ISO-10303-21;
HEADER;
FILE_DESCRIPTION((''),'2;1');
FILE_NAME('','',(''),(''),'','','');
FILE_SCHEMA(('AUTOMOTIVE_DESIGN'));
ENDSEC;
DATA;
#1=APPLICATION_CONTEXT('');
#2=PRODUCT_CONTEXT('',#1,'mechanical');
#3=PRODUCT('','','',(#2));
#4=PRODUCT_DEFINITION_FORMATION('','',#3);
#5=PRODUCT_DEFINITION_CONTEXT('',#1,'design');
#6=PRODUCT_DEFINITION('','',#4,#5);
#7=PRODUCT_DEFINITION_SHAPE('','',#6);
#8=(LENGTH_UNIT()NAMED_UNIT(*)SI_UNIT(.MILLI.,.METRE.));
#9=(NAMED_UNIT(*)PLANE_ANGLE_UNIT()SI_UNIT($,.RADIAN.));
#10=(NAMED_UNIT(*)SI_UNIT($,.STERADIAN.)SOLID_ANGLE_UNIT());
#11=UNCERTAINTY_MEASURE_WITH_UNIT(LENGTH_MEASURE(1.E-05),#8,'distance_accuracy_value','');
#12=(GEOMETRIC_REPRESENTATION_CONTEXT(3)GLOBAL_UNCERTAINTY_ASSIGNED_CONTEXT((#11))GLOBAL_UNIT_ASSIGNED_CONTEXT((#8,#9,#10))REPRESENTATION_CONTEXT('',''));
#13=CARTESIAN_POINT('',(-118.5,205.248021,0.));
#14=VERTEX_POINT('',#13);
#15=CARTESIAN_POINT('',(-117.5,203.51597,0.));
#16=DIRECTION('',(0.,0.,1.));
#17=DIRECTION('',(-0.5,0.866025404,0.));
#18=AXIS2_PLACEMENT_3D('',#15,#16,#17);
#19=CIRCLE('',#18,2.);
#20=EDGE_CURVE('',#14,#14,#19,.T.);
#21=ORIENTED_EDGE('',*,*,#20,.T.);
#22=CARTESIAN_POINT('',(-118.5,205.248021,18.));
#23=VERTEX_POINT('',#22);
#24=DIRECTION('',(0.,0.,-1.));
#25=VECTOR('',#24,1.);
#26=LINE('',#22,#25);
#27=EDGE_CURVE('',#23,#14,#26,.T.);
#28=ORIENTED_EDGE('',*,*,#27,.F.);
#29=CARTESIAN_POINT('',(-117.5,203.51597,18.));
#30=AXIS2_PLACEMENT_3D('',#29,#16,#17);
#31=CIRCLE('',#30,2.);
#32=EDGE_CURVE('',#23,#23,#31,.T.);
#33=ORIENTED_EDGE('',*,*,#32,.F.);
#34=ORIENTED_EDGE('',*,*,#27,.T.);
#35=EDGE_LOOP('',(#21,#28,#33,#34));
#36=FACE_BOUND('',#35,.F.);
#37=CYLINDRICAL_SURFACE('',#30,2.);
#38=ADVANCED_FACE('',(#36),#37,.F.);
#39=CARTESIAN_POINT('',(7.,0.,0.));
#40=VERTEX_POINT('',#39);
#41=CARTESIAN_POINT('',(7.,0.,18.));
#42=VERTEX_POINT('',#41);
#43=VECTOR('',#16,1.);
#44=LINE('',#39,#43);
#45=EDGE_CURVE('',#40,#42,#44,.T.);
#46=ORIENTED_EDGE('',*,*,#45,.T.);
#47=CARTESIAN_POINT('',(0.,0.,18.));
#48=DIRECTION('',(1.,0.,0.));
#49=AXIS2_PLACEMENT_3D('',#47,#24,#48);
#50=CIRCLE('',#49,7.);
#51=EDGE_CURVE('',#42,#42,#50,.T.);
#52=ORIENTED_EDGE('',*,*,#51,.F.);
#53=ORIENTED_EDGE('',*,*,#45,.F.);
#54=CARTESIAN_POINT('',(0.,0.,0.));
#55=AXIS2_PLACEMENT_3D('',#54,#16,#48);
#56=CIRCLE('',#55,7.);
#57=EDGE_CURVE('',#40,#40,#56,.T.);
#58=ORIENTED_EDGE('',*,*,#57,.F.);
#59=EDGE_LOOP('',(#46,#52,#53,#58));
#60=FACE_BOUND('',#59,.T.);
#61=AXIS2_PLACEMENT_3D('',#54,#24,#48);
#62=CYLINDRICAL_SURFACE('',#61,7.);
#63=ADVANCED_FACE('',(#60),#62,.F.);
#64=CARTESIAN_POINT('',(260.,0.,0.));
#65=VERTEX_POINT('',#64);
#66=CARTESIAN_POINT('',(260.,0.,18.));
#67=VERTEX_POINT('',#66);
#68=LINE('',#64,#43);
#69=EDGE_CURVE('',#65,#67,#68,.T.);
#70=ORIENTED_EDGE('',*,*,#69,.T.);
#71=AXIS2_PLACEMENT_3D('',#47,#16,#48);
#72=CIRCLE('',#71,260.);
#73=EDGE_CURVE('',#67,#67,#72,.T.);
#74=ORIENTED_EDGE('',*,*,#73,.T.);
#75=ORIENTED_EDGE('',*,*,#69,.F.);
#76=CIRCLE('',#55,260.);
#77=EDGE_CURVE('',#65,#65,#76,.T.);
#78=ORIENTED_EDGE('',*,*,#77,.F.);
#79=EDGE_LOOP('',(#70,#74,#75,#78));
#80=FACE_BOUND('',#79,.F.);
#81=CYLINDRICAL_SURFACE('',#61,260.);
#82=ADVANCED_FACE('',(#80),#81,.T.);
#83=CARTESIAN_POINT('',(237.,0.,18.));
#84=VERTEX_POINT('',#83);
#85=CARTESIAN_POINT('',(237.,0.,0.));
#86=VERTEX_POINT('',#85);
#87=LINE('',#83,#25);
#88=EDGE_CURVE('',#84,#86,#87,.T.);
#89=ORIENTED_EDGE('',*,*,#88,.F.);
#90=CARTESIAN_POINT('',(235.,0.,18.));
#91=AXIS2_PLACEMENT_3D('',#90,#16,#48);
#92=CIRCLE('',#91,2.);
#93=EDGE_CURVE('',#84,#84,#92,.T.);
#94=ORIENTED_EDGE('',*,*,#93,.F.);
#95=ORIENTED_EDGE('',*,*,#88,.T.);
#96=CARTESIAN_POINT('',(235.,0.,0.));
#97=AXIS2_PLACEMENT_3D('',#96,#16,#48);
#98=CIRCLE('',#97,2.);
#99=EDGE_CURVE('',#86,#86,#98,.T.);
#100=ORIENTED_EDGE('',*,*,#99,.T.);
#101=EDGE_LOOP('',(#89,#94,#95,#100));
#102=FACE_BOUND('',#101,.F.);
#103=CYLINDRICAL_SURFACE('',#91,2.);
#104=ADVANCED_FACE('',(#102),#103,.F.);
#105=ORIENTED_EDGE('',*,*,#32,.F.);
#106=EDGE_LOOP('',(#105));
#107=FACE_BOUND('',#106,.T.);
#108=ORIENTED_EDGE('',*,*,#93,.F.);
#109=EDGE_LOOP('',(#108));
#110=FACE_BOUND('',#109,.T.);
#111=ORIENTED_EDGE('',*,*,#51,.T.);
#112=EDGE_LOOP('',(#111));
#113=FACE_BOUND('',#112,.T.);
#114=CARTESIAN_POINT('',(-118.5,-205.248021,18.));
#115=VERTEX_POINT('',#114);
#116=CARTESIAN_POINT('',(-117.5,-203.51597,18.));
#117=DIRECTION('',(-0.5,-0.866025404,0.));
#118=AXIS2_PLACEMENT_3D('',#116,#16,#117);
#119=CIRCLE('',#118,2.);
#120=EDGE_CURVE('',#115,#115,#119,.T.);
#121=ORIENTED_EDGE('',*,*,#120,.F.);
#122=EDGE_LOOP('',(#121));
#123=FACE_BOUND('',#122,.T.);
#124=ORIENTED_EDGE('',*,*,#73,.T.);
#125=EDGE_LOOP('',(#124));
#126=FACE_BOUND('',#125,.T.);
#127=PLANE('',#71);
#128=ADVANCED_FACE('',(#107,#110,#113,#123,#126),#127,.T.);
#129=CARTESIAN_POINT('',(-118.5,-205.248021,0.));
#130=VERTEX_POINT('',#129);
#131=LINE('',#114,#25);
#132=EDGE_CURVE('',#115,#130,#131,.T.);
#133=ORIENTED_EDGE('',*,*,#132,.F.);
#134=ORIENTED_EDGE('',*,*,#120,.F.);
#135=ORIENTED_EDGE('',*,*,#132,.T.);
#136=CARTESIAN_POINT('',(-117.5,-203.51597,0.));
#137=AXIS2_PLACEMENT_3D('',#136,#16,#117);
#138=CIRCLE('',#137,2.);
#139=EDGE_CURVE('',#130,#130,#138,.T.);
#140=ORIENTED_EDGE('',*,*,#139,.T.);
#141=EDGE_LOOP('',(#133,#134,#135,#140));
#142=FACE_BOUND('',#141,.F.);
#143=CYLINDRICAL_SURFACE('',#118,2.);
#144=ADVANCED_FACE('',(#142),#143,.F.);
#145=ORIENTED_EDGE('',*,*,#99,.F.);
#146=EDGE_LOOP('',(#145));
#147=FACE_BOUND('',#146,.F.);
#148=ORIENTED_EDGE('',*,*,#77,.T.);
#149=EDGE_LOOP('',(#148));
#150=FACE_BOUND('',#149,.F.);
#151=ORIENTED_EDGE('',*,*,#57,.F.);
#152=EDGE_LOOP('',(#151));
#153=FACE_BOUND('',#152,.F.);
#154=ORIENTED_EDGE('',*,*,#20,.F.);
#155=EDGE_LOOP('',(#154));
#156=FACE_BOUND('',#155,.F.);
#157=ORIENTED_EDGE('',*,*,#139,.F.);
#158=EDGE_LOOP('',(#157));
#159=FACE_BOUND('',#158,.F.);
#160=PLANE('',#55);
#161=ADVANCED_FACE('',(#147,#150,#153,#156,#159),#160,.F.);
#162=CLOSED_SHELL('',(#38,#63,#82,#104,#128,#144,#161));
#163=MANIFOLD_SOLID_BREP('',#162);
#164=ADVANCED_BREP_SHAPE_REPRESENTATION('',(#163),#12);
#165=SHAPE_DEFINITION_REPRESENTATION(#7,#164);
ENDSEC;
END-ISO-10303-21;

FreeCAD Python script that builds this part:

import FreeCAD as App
import Part
import Sketcher
Q = App.Units.Quantity

doc = App.newDocument("Part")
body = doc.addObject("PartDesign::Body", "Body")

# Sketch on XY plane
sketch1 = body.newObject("Sketcher::SketchObject", "Sketch")
sketch1.AttachmentSupport = (doc.getObject("XY_Plane"), [""])
sketch1.MapMode = "FlatFace"
sketch1.addGeometry(Part.Circle(App.Vector(0, 0, 0), App.Vector(0, 0, 1), 260), False)
sketch1.addConstraint(Sketcher.Constraint("Coincident", 0, 3, -1, 1))
sketch1.addConstraint(Sketcher.Constraint("Diameter", 0, Q("520 mm")))
pad1 = body.newObject("PartDesign::Pad", "Pad")
pad1.Profile = sketch1
pad1.Length = 18

# Sketch on XY plane
sketch2 = body.newObject("Sketcher::SketchObject", "Sketch001")
sketch2.AttachmentSupport = (doc.getObject("XY_Plane"), [""])
sketch2.MapMode = "FlatFace"
sketch2.AttachmentOffset = App.Placement(App.Vector(0, 0, 18), App.Rotation())
sketch2.addGeometry(Part.Circle(App.Vector(235, 0, 0), App.Vector(0, 0, 1), 2), False)
sketch2.addConstraint(Sketcher.Constraint("PointOnObject", 0, 3, -1))
sketch2.addConstraint(Sketcher.Constraint("Diameter", 0, Q("4 mm")))
sketch2.addConstraint(Sketcher.Constraint("DistanceX", -1, 1, 0, 3, Q("235 mm")))
pocket1 = body.newObject("PartDesign::Pocket", "Pocket")
pocket1.Profile = sketch2
pocket1.Type = "ThroughAll"
doc.recompute()

polarpattern = body.newObject("PartDesign::PolarPattern", "PolarPattern")
polarpattern.Originals = [pocket1]
polarpattern.Axis = (doc.getObject("Z_Axis"), [""])
polarpattern.Angle = 360
polarpattern.Occurrences = 3
body.Tip = polarpattern

# Sketch on XY plane
sketch3 = body.newObject("Sketcher::SketchObject", "Sketch002")
sketch3.AttachmentSupport = (doc.getObject("XY_Plane"), [""])
sketch3.MapMode = "FlatFace"
sketch3.addGeometry(Part.Circle(App.Vector(0, 0, 0), App.Vector(0, 0, 1), 7), False)
sketch3.addConstraint(Sketcher.Constraint("Coincident", 0, 3, -1, 1))
sketch3.addConstraint(Sketcher.Constraint("Diameter", 0, Q("14 mm")))
pocket2 = body.newObject("PartDesign::Pocket", "Pocket001")
pocket2.Profile = sketch3
pocket2.Type = "ThroughAll"
pocket2.Reversed = True

doc.recompute()
